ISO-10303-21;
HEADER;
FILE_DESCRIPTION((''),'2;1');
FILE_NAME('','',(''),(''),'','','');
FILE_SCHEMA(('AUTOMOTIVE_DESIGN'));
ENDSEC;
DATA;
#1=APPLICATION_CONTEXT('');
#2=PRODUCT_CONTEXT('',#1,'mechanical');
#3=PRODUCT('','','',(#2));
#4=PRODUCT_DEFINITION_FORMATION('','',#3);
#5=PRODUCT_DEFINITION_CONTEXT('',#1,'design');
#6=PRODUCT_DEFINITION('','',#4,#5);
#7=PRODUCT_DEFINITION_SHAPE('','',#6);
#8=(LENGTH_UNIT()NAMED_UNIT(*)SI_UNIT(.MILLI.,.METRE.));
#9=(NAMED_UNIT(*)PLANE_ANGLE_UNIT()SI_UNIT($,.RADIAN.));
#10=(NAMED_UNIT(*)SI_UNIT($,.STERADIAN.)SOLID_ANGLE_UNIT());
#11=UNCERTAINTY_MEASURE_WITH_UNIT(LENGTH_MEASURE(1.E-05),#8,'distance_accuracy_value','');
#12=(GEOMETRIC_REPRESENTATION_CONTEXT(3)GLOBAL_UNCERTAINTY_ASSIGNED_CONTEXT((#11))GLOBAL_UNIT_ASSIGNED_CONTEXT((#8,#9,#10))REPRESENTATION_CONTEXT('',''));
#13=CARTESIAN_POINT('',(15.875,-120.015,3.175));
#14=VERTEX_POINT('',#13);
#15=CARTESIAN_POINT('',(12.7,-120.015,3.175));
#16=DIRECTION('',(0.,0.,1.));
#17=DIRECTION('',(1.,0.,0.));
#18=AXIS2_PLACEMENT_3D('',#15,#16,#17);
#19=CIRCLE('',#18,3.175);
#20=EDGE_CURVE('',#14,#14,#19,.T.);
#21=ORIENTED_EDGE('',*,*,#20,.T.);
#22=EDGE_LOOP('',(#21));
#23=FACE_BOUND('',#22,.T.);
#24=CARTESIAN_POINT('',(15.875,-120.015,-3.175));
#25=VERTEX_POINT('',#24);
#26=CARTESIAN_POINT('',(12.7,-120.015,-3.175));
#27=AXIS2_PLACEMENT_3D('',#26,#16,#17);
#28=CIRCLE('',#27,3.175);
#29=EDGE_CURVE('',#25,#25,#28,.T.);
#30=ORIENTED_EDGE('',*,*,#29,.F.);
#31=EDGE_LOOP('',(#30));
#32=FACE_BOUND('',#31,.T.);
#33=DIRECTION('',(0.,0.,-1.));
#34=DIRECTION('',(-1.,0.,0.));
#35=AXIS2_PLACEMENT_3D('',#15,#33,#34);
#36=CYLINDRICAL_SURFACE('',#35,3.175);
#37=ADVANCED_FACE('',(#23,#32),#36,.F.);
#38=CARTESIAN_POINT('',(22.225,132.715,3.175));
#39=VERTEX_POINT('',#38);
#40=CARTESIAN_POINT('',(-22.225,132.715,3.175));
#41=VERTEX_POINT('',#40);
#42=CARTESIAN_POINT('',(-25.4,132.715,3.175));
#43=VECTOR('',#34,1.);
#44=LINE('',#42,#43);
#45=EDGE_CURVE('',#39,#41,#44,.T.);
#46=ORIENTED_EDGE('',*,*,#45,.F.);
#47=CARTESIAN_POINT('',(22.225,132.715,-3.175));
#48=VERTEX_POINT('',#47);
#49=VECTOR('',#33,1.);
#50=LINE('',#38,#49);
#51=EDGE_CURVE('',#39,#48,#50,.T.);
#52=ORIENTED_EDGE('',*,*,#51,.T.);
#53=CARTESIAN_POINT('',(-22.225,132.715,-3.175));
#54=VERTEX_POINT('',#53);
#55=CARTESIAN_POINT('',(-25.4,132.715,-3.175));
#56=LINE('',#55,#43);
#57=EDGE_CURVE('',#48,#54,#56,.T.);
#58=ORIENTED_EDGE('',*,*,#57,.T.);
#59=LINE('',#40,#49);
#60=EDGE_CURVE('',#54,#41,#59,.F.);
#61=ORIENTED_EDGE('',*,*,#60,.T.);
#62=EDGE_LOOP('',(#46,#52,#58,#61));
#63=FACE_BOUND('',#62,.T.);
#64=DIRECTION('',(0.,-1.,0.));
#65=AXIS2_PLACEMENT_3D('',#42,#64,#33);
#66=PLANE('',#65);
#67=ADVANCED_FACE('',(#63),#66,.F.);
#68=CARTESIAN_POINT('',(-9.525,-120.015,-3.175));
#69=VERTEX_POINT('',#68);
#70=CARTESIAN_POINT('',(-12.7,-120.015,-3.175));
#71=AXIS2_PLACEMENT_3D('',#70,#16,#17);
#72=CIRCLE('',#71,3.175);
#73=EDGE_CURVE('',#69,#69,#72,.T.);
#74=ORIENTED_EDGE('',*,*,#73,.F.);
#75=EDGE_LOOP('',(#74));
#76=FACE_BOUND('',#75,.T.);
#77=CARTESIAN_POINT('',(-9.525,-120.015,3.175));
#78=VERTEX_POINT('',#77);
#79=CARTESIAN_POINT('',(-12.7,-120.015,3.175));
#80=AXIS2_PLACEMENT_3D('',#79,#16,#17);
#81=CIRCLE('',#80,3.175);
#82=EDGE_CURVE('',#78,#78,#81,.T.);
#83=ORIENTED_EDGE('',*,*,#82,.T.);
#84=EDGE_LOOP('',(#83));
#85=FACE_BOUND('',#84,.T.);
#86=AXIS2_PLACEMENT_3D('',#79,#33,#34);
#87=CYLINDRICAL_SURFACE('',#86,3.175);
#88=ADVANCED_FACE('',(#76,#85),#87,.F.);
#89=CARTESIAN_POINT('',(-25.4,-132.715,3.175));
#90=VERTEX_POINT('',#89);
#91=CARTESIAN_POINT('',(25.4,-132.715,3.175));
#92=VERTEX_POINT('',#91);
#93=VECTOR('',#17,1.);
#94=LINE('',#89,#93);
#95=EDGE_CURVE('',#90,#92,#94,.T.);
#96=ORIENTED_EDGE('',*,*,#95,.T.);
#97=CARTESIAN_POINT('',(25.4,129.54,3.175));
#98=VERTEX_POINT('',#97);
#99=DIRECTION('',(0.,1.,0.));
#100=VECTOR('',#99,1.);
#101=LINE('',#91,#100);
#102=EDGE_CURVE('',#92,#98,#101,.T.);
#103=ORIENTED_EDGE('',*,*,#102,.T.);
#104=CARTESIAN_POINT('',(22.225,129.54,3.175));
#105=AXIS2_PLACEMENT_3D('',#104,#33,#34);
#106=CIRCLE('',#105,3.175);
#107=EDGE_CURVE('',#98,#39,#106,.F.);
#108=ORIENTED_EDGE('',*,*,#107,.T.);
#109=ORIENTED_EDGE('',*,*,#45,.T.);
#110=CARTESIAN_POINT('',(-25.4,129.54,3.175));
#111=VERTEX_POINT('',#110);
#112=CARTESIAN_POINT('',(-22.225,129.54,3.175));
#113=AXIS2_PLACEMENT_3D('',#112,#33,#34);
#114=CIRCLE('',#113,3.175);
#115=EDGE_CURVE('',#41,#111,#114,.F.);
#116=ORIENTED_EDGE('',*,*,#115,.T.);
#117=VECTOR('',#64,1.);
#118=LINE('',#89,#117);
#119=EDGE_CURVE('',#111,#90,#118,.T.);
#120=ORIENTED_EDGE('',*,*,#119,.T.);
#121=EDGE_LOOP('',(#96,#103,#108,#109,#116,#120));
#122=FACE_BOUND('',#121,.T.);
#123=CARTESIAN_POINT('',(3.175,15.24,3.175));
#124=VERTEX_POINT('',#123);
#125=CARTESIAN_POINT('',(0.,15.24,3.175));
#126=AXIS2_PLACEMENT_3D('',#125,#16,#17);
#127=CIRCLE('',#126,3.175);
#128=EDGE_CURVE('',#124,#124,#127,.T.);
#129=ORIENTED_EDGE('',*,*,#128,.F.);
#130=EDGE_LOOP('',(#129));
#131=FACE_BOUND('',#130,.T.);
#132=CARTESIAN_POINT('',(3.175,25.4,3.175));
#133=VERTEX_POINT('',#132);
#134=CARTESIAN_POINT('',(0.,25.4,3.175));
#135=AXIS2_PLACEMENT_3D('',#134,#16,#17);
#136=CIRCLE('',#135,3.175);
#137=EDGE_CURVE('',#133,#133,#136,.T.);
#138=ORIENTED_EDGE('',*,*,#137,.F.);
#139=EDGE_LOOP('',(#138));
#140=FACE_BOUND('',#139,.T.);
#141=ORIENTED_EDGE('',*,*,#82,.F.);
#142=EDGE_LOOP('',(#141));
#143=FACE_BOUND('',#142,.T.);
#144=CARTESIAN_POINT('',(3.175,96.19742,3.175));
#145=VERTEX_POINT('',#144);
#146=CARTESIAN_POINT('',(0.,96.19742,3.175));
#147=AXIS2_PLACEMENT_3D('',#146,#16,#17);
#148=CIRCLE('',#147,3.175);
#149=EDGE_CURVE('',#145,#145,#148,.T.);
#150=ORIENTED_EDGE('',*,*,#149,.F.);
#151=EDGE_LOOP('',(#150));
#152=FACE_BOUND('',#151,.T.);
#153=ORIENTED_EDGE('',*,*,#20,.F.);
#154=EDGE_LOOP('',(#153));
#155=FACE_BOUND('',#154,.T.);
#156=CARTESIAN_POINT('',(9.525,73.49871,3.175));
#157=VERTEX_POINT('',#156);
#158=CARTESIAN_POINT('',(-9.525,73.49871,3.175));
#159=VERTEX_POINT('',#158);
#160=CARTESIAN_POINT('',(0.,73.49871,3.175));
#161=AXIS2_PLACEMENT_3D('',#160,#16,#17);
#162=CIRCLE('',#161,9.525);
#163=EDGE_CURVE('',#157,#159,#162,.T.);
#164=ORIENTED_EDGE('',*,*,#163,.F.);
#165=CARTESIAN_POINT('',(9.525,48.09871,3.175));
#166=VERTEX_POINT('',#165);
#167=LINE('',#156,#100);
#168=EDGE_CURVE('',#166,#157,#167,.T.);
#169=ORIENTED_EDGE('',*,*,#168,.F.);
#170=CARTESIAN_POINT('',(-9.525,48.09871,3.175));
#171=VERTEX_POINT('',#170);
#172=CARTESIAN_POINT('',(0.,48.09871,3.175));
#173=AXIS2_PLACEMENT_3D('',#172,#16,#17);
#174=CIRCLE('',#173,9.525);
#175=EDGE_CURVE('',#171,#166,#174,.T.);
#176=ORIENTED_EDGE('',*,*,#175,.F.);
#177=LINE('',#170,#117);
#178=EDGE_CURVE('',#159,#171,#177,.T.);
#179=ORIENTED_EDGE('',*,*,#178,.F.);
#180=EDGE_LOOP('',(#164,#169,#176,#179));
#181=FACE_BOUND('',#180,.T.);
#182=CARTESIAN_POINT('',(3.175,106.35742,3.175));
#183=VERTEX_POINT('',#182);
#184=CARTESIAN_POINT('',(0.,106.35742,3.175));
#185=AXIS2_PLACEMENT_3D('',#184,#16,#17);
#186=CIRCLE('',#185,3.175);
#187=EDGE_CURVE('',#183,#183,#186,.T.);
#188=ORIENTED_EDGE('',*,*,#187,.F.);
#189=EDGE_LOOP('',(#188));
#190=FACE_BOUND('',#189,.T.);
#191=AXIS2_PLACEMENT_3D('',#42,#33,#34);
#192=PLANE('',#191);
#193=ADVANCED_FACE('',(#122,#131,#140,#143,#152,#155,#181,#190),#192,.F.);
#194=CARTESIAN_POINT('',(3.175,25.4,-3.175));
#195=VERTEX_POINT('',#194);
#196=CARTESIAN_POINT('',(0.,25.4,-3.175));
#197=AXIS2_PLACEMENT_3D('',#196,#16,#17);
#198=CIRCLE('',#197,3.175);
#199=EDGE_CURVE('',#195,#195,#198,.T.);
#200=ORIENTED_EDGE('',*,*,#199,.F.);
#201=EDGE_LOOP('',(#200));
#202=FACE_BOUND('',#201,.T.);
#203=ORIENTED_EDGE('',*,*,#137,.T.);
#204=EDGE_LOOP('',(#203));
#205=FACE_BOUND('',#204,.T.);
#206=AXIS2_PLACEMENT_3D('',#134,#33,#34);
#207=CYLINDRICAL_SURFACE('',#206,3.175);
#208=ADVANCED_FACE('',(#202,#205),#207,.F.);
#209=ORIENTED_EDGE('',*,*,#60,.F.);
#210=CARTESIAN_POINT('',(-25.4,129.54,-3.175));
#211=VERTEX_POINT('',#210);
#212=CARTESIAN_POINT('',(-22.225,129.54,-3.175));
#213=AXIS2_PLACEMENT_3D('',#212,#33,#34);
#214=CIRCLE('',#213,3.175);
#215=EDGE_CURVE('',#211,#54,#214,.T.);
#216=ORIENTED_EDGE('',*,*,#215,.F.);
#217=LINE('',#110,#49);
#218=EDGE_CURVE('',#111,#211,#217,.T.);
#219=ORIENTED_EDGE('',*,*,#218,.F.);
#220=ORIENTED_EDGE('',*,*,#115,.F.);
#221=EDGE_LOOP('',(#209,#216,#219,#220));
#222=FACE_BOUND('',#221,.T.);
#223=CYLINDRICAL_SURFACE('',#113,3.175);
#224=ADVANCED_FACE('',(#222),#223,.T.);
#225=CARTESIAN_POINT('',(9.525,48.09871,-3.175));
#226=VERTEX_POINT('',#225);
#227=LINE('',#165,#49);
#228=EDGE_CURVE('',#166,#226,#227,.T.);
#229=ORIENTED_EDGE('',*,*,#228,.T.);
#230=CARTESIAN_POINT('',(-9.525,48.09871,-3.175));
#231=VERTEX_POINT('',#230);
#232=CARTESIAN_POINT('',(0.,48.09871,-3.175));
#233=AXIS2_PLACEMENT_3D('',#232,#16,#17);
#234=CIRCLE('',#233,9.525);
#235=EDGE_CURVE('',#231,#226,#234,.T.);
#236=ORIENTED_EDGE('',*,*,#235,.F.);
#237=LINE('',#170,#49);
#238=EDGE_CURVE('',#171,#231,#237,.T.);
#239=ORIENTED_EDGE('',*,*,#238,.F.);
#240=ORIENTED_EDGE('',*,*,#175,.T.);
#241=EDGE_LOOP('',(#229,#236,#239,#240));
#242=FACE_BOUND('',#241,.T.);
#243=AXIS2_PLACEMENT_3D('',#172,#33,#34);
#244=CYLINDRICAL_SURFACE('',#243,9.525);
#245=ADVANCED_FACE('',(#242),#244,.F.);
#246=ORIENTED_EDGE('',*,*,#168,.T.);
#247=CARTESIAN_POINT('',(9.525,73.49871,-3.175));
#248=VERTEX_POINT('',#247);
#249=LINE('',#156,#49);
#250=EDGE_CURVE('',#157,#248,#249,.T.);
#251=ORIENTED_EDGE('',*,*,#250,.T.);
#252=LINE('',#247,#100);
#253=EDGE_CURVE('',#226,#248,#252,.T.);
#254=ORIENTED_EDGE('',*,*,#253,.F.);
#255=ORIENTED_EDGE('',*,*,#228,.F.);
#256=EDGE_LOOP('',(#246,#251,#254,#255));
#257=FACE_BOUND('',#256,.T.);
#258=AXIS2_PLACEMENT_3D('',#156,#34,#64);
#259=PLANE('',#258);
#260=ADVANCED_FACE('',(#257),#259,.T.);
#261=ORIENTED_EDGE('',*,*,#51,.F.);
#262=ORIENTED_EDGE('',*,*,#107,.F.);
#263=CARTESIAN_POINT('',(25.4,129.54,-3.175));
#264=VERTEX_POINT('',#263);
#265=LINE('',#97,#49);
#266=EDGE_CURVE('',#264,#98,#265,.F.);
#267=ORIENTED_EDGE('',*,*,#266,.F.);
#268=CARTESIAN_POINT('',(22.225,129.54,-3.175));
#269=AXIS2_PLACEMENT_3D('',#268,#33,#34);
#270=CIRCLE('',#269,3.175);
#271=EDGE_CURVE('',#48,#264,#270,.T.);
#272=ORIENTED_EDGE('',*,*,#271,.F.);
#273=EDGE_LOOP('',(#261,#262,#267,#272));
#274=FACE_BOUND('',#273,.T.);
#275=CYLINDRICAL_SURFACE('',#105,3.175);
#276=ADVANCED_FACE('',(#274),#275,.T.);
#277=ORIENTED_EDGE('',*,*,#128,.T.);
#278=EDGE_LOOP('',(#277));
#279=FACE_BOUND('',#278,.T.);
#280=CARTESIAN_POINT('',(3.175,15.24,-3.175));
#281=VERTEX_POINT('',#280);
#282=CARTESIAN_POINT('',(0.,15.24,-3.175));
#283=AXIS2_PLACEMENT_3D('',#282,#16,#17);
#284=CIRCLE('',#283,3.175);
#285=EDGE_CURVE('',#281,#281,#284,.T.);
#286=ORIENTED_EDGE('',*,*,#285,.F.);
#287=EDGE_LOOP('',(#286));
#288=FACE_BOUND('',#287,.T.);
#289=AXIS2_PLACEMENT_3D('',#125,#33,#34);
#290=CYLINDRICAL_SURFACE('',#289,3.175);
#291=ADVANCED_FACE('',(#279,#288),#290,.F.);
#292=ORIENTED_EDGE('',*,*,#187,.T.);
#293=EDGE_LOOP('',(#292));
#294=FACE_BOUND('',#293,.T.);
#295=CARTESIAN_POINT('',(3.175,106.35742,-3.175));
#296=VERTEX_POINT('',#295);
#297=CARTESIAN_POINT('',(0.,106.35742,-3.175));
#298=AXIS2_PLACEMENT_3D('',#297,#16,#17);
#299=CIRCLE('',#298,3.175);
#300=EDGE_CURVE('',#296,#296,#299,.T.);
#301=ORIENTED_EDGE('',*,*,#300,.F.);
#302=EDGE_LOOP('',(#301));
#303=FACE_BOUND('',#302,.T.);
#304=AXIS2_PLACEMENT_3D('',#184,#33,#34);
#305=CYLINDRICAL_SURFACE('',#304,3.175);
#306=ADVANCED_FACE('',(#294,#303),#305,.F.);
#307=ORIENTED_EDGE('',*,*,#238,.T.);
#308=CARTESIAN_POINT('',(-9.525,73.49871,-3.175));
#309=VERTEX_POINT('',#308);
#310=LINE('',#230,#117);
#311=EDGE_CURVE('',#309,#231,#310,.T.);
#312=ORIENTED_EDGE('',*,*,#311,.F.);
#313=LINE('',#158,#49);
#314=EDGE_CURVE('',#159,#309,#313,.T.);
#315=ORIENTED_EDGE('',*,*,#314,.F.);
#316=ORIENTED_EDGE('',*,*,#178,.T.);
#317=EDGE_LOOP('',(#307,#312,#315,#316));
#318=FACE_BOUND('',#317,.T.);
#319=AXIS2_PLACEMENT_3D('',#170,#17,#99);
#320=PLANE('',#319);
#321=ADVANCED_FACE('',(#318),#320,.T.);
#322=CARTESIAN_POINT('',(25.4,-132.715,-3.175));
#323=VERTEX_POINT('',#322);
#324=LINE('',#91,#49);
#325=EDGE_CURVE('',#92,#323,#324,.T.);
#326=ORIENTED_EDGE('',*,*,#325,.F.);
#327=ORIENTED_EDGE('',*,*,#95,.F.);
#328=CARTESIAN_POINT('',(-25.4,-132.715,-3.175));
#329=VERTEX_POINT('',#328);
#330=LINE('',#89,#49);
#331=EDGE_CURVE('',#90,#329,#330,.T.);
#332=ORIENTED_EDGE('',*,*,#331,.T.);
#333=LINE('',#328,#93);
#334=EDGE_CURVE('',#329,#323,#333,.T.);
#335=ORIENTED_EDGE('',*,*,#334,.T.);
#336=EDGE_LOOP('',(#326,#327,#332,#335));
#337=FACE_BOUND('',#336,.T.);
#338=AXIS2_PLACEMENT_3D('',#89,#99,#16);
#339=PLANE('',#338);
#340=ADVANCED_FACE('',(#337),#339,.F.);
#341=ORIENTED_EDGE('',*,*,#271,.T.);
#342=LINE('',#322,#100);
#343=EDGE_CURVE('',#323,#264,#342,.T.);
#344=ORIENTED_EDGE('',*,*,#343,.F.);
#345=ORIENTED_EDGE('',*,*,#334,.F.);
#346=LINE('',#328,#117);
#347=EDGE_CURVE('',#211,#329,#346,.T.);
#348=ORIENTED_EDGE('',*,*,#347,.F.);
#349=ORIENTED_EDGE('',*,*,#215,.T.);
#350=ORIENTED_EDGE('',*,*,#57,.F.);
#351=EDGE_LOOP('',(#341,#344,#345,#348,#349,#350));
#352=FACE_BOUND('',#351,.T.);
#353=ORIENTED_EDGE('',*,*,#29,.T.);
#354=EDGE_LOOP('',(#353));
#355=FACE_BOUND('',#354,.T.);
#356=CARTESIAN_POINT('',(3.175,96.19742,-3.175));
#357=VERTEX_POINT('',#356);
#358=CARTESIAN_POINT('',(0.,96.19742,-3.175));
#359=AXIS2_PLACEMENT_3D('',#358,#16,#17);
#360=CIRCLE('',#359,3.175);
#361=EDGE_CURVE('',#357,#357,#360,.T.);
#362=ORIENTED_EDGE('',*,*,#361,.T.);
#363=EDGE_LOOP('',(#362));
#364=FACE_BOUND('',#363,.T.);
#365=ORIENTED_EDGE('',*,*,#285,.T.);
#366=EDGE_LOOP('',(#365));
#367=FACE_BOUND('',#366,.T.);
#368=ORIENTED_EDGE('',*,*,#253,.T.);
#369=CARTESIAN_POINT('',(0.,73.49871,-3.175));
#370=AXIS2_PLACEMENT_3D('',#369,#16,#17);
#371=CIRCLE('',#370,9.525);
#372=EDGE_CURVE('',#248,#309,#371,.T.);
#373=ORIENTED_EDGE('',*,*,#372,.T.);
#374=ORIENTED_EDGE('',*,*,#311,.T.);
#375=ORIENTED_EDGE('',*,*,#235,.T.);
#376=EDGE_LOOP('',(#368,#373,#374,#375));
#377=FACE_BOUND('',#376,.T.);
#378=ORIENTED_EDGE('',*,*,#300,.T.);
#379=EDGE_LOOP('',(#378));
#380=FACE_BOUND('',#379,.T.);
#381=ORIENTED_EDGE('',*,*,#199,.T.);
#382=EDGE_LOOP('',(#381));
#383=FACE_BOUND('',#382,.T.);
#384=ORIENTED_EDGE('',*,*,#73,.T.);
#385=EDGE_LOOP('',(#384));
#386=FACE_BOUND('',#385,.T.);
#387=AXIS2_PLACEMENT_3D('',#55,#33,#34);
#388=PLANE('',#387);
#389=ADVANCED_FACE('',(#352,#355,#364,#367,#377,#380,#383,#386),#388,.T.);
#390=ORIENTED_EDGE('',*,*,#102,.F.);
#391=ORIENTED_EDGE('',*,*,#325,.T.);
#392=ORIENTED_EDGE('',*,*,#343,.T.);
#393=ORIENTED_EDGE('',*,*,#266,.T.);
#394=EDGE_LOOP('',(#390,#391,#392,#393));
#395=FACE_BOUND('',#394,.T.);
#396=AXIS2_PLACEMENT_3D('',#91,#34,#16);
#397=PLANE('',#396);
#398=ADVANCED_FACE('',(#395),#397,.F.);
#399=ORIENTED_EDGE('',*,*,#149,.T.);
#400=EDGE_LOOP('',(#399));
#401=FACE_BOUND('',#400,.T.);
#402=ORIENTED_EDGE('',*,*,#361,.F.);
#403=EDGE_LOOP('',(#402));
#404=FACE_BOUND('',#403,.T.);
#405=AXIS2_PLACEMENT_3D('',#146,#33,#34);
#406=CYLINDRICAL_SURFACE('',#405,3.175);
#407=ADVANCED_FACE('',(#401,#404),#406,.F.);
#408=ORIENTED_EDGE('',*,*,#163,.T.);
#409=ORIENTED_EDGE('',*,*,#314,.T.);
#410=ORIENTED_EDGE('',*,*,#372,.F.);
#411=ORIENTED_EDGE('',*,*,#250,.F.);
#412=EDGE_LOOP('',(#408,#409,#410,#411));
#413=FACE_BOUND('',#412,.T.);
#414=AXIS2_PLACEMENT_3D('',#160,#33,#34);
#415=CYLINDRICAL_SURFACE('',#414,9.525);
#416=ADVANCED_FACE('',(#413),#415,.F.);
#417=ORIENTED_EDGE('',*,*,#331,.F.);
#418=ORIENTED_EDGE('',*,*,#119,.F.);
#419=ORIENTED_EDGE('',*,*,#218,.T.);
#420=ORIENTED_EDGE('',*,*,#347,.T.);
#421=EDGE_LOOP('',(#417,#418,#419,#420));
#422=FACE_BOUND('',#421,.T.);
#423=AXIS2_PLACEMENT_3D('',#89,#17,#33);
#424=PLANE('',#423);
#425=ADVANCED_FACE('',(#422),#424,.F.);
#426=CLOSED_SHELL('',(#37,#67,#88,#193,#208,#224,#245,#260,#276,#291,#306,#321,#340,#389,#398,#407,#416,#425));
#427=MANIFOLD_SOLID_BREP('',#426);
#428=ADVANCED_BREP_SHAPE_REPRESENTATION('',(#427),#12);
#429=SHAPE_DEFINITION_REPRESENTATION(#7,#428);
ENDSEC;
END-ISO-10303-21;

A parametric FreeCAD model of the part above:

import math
import FreeCAD as App
import Part
import Sketcher

V = App.Vector
Q = App.Units.Quantity


def edges_at(feature, points):
    """Names of the edges that pass closest to the given points."""
    edges = feature.Shape.Edges
    near = lambda p: min(range(len(edges)), key=lambda i: edges[i].distToShape(Part.Vertex(*p))[0])
    return sorted({f"Edge{near(p) + 1}" for p in points})

doc = App.newDocument("Part")
body = doc.addObject("PartDesign::Body", "Body")

sketch1 = body.newObject("Sketcher::SketchObject", "Sketch")
sketch1.AttachmentSupport = (doc.getObject("XY_Plane"), [""])
sketch1.MapMode = "FlatFace"
sketch1.addGeometry(Part.LineSegment(V(-25.4, 132.7, 0), V(-25.4, -132.7, 0)), False)
sketch1.addGeometry(Part.LineSegment(V(-25.4, -132.7, 0), V(25.4, -132.7, 0)), False)
sketch1.addGeometry(Part.LineSegment(V(25.4, -132.7, 0), V(25.4, 132.7, 0)), False)
sketch1.addGeometry(Part.LineSegment(V(25.4, 132.7, 0), V(-25.4, 132.7, 0)), False)
sketch1.addGeometry(Part.Circle(V(-12.7, -120, 0), V(0, 0, 1), 3.2), False)
sketch1.addGeometry(Part.Circle(V(12.7, -120, 0), V(0, 0, 1), 3.2), False)
sketch1.addGeometry(Part.Circle(V(0, 15.2, 0), V(0, 0, 1), 3.2), False)
sketch1.addGeometry(Part.Circle(V(0, 25.4, 0), V(0, 0, 1), 3.2), False)
sketch1.addGeometry(Part.ArcOfCircle(Part.Circle(V(0, 73.5, 0), V(0, 0, 1), 9.5), math.radians(0), math.radians(180)), False)
sketch1.addGeometry(Part.LineSegment(V(9.5, 73.5, 0), V(9.5, 48.1, 0)), False)
sketch1.addGeometry(Part.ArcOfCircle(Part.Circle(V(0, 48.1, 0), V(0, 0, 1), 9.5), math.radians(180), math.radians(360)), False)
sketch1.addGeometry(Part.LineSegment(V(-9.5, 48.1, 0), V(-9.5, 73.5, 0)), False)
sketch1.addGeometry(Part.Circle(V(0, 96.2, 0), V(0, 0, 1), 3.2), False)
sketch1.addGeometry(Part.Circle(V(0, 106.4, 0), V(0, 0, 1), 3.2), False)
sketch1.addConstraint(Sketcher.Constraint("Coincident", 0, 2, 1, 1))
sketch1.addConstraint(Sketcher.Constraint("Coincident", 1, 2, 2, 1))
sketch1.addConstraint(Sketcher.Constraint("Coincident", 2, 2, 3, 1))
sketch1.addConstraint(Sketcher.Constraint("Coincident", 3, 2, 0, 1))
sketch1.addConstraint(Sketcher.Constraint("Tangent", 8, 1, 9, 1))
sketch1.addConstraint(Sketcher.Constraint("Tangent", 9, 2, 10, 2))
sketch1.addConstraint(Sketcher.Constraint("Tangent", 10, 1, 11, 1))
sketch1.addConstraint(Sketcher.Constraint("Tangent", 11, 2, 8, 2))
sketch1.addConstraint(Sketcher.Constraint("Vertical", 0))
sketch1.addConstraint(Sketcher.Constraint("Horizontal", 1))
sketch1.addConstraint(Sketcher.Constraint("Vertical", 2))
sketch1.addConstraint(Sketcher.Constraint("Horizontal", 3))
sketch1.addConstraint(Sketcher.Constraint("Vertical", 9))
sketch1.addConstraint(Sketcher.Constraint("Vertical", 11))
sketch1.addConstraint(Sketcher.Constraint("Equal", 4, 5))
sketch1.addConstraint(Sketcher.Constraint("Equal", 5, 6))
sketch1.addConstraint(Sketcher.Constraint("Equal", 6, 7))
sketch1.addConstraint(Sketcher.Constraint("Equal", 7, 12))
sketch1.addConstraint(Sketcher.Constraint("Equal", 12, 13))
sketch1.addConstraint(Sketcher.Constraint("Symmetric", 0, 2, 2, 2, -1, 1))
sketch1.addConstraint(Sketcher.Constraint("Symmetric", 4, 3, 5, 3, -2))
sketch1.addConstraint(Sketcher.Constraint("PointOnObject", 6, 3, -2))
sketch1.addConstraint(Sketcher.Constraint("PointOnObject", 7, 3, -2))
sketch1.addConstraint(Sketcher.Constraint("PointOnObject", 8, 3, -2))
sketch1.addConstraint(Sketcher.Constraint("PointOnObject", 12, 3, -2))
sketch1.addConstraint(Sketcher.Constraint("PointOnObject", 13, 3, -2))
sketch1.addConstraint(Sketcher.Constraint("Diameter", 4, Q("0.25 in")))
sketch1.addConstraint(Sketcher.Constraint("DistanceX", 1, 1, 1, 2, Q("2 in")))
sketch1.addConstraint(Sketcher.Constraint("DistanceY", 9, 2, 9, 1, Q("1 in")))
sketch1.addConstraint(Sketcher.Constraint("DistanceY", -1, 1, 7, 3, Q("1 in")))
sketch1.addConstraint(Sketcher.Constraint("Radius", 8, Q("0.375 in")))
sketch1.addConstraint(Sketcher.Constraint("DistanceX", 4, 3, 5, 3, Q("1 in")))
sketch1.addConstraint(Sketcher.Constraint("DistanceY", 0, 2, 0, 1, Q("10.45 in")))
sketch1.addConstraint(Sketcher.Constraint("DistanceY", -1, 1, 6, 3, Q("0.6 in")))
sketch1.addConstraint(Sketcher.Constraint("DistanceY", 12, 3, 13, 3, Q("0.4 in")))
sketch1.addConstraint(Sketcher.Constraint("DistanceY", 0, 2, 4, 3, Q("0.5 in")))
sketch1.addConstraint(Sketcher.Constraint("DistanceY", -1, 1, 12, 3, Q("3.7873 in")))
sketch1.addConstraint(Sketcher.Constraint("DistanceY", -1, 1, 8, 3, Q("73.49871 mm")))
pad1 = body.newObject("PartDesign::Pad", "Pad")
pad1.Profile = sketch1
pad1.Length = Q("0.25 in")
pad1.Midplane = True
doc.recompute()

fillet = body.newObject("PartDesign::Fillet", "Fillet")
fillet.Base = (pad1, edges_at(pad1, [(-25.4, 132.715, 0), (25.4, 132.715, 0)]))
fillet.Radius = Q("0.125 in")

doc.recompute()
